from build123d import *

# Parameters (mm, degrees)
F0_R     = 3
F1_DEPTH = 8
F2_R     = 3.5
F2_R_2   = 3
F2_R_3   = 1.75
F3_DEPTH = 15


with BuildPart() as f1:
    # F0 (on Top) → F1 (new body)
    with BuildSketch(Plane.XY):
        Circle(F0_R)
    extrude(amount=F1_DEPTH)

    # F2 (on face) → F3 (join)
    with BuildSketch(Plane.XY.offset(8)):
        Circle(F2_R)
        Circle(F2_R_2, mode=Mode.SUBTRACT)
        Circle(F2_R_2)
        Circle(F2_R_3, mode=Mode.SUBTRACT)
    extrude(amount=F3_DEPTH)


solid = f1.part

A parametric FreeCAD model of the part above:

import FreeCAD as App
import Part
import Sketcher

V = App.Vector

doc = App.newDocument("Part")
body = doc.addObject("PartDesign::Body", "Body")

sketch1 = doc.addObject("Sketcher::SketchObject", "Sketch")
body.addObject(sketch1)
sketch1.AttachmentSupport = (doc.XY_Plane, [""])
sketch1.MapMode = "FlatFace"
sketch1.addGeometry(Part.Circle(V(0, 0, 0), V(0, 0, 1), 3), False)
sketch1.addConstraint([
    Sketcher.Constraint("Coincident", 0, 3, -1, 1),
    Sketcher.Constraint("Diameter", 0, 6.0),
])
pad1 = doc.addObject("PartDesign::Pad", "Pad")
body.addObject(pad1)
pad1.Profile = sketch1
pad1.Length = 8

sketch2 = doc.addObject("Sketcher::SketchObject", "Sketch001")
body.addObject(sketch2)
sketch2.AttachmentSupport = (doc.XY_Plane, [""])
sketch2.MapMode = "FlatFace"
sketch2.AttachmentOffset = App.Placement(V(0, 0, 8), App.Rotation())
sketch2.addGeometry([
    Part.Circle(V(0, 0, 0), V(0, 0, 1), 3.5),
    Part.Circle(V(0, 0, 0), V(0, 0, 1), 1.8),
], False)
sketch2.addConstraint([
    Sketcher.Constraint("Coincident", 0, 3, -1, 1),
    Sketcher.Constraint("Coincident", 1, 3, -1, 1),
    Sketcher.Constraint("Diameter", 0, 7.0),
    Sketcher.Constraint("Diameter", 1, 3.5),
])
pad2 = doc.addObject("PartDesign::Pad", "Pad001")
body.addObject(pad2)
pad2.Profile = sketch2
pad2.Length = 15

doc.recompute()
